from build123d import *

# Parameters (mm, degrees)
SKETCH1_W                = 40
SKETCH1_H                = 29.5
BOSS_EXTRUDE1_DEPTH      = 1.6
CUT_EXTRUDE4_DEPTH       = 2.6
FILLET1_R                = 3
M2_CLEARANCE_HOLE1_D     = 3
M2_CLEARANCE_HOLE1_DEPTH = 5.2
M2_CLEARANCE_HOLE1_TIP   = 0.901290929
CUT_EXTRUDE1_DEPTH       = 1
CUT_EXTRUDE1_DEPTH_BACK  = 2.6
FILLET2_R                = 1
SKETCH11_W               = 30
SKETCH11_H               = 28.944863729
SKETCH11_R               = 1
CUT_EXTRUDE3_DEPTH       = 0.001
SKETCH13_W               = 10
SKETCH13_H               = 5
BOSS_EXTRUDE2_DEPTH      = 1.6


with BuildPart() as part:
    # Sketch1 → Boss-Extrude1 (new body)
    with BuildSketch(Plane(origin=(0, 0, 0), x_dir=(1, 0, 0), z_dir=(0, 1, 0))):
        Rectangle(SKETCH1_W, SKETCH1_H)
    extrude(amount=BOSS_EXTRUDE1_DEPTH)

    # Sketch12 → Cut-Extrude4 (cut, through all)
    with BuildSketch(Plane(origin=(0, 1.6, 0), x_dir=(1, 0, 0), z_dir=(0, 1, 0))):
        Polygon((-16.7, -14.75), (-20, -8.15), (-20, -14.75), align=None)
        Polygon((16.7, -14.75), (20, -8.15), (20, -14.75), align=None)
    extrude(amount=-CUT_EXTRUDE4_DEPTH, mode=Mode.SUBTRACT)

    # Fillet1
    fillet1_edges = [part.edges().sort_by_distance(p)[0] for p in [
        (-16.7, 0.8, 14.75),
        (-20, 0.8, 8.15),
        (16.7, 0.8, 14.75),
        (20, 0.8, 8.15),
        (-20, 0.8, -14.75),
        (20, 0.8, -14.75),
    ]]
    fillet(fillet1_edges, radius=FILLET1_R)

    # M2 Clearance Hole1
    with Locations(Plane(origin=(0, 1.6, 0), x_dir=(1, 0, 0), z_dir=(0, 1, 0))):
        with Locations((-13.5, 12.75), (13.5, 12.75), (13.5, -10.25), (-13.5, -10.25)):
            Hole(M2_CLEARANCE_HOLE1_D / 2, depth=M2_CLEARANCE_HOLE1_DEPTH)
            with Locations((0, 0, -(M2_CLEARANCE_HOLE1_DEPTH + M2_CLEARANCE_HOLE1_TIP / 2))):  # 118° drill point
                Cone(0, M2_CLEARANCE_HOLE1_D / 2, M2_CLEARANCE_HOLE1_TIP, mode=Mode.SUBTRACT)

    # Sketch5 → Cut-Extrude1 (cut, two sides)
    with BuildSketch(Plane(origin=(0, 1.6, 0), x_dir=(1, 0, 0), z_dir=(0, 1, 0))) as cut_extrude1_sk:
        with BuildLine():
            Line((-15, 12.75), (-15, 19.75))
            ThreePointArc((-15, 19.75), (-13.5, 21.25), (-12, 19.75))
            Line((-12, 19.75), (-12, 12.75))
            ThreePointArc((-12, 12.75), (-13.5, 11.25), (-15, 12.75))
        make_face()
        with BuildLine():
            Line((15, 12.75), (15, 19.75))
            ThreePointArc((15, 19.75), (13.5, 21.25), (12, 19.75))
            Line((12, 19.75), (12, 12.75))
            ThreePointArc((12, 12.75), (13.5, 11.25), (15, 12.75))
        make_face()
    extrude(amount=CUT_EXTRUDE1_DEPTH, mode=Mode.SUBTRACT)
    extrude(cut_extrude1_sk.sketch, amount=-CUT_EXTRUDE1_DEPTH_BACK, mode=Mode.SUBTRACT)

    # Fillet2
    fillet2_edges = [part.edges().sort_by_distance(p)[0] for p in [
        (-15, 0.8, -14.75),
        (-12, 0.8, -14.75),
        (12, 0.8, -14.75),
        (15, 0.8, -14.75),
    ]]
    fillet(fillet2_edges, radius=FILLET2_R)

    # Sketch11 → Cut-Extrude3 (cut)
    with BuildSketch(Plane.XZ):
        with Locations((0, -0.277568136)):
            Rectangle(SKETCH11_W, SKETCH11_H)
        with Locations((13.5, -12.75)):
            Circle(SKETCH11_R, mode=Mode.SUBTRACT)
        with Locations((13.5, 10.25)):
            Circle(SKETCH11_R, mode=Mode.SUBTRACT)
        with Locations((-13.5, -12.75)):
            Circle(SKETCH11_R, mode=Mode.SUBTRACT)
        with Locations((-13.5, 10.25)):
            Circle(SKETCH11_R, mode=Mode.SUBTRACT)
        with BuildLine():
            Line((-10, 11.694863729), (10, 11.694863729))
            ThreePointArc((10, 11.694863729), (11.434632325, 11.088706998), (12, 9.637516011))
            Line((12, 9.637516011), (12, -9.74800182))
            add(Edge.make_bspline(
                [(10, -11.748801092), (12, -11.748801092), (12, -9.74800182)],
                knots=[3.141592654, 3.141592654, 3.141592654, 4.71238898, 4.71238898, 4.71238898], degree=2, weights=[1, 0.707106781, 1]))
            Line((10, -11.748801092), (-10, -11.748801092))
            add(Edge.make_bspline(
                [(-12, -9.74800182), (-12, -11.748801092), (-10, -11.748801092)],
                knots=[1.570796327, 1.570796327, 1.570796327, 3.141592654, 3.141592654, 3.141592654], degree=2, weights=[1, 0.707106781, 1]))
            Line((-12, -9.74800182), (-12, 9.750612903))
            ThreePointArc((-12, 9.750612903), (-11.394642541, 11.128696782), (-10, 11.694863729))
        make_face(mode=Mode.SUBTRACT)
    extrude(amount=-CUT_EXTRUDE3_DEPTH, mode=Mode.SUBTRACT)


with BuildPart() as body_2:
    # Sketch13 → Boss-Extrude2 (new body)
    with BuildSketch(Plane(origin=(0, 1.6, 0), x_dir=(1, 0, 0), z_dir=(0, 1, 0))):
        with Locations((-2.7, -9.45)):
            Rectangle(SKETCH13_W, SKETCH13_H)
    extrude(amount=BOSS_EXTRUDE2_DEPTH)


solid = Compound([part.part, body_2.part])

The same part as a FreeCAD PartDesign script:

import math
import FreeCAD as App
import Part
import Sketcher
from FreeCAD import Vector


def edges_at(feature, points):
    """Names of the edges that pass closest to the given points."""
    edges = feature.Shape.Edges
    near = lambda p: min(range(len(edges)), key=lambda i: edges[i].distToShape(Part.Vertex(*p))[0])
    return sorted({f"Edge{near(p) + 1}" for p in points})

doc = App.newDocument("Part")
body = doc.addObject("PartDesign::Body", "Body")

sketch1 = doc.addObject("Sketcher::SketchObject", "Sketch")
body.addObject(sketch1)
sketch1.AttachmentSupport = (doc.XZ_Plane, [""])
sketch1.MapMode = "FlatFace"
sketch1.addGeometry(Part.LineSegment(Vector(-20, -15, 0), Vector(-20, 15, 0)), False)
sketch1.addGeometry(Part.LineSegment(Vector(-20, 15, 0), Vector(20, 15, 0)), False)
sketch1.addGeometry(Part.LineSegment(Vector(20, 15, 0), Vector(20, -15, 0)), False)
sketch1.addGeometry(Part.LineSegment(Vector(20, -15, 0), Vector(-20, -15, 0)), False)
sketch1.addConstraint(Sketcher.Constraint("Coincident", 0, 2, 1, 1))
sketch1.addConstraint(Sketcher.Constraint("Coincident", 1, 2, 2, 1))
sketch1.addConstraint(Sketcher.Constraint("Coincident", 2, 2, 3, 1))
sketch1.addConstraint(Sketcher.Constraint("Coincident", 3, 2, 0, 1))
sketch1.addConstraint(Sketcher.Constraint("Vertical", 0))
sketch1.addConstraint(Sketcher.Constraint("Horizontal", 1))
sketch1.addConstraint(Sketcher.Constraint("Vertical", 2))
sketch1.addConstraint(Sketcher.Constraint("Horizontal", 3))
sketch1.addConstraint(Sketcher.Constraint("Symmetric", 0, 2, 2, 2, -1, 1))
sketch1.addConstraint(Sketcher.Constraint("DistanceX", 1, 1, 1, 2, 40.0))
sketch1.addConstraint(Sketcher.Constraint("DistanceY", 0, 1, 0, 2, 29.5))
pad1 = doc.addObject("PartDesign::Pad", "Pad")
body.addObject(pad1)
pad1.Profile = sketch1
pad1.Length = 1.6
pad1.Reversed = True

sketch2 = doc.addObject("Sketcher::SketchObject", "Sketch001")
body.addObject(sketch2)
sketch2.AttachmentSupport = (doc.XZ_Plane, [""])
sketch2.MapMode = "FlatFace"
sketch2.AttachmentOffset = App.Placement(Vector(0, 0, -1.6), App.Rotation())
sketch2.addGeometry(Part.LineSegment(Vector(-16.7, 14.8, 0), Vector(-20, 8.2, 0)), False)
sketch2.addGeometry(Part.LineSegment(Vector(-20, 8.2, 0), Vector(-20, 14.8, 0)), False)
sketch2.addGeometry(Part.LineSegment(Vector(-20, 14.8, 0), Vector(-16.7, 14.8, 0)), False)
sketch2.addGeometry(Part.LineSegment(Vector(20, 8.2, 0), Vector(16.7, 14.8, 0)), False)
sketch2.addGeometry(Part.LineSegment(Vector(16.7, 14.8, 0), Vector(20, 14.8, 0)), False)
sketch2.addGeometry(Part.LineSegment(Vector(20, 14.8, 0), Vector(20, 8.2, 0)), False)
sketch2.addConstraint(Sketcher.Constraint("Coincident", 0, 2, 1, 1))
sketch2.addConstraint(Sketcher.Constraint("Coincident", 1, 2, 2, 1))
sketch2.addConstraint(Sketcher.Constraint("Coincident", 2, 2, 0, 1))
sketch2.addConstraint(Sketcher.Constraint("Coincident", 3, 2, 4, 1))
sketch2.addConstraint(Sketcher.Constraint("Coincident", 4, 2, 5, 1))
sketch2.addConstraint(Sketcher.Constraint("Coincident", 5, 2, 3, 1))
sketch2.addConstraint(Sketcher.Constraint("Vertical", 1))
sketch2.addConstraint(Sketcher.Constraint("Horizontal", 2))
sketch2.addConstraint(Sketcher.Constraint("Horizontal", 4))
sketch2.addConstraint(Sketcher.Constraint("Vertical", 5))
sketch2.addConstraint(Sketcher.Constraint("Symmetric", 2, 2, 3, 2, -2))
sketch2.addConstraint(Sketcher.Constraint("Symmetric", 0, 2, 5, 2, -2))
sketch2.addConstraint(Sketcher.Constraint("DistanceX", 2, 1, 2, 2, 3.3))
sketch2.addConstraint(Sketcher.Constraint("DistanceY", 1, 1, 1, 2, 6.6))
sketch2.addConstraint(Sketcher.Constraint("DistanceX", 0, 2, -1, 1, 20.0))
sketch2.addConstraint(Sketcher.Constraint("DistanceY", -1, 1, 0, 2, 8.15))
pocket1 = doc.addObject("PartDesign::Pocket", "Pocket")
body.addObject(pocket1)
pocket1.Profile = sketch2
pocket1.Type = "ThroughAll"
pocket1.Reversed = True
doc.recompute()

fillet = doc.addObject("PartDesign::Fillet", "Fillet")
body.addObject(fillet)
fillet.Base = (pocket1, edges_at(pocket1, [
    (-16.7, 0.8, 14.75),
    (-20, 0.8, 8.15),
    (16.7, 0.8, 14.75),
    (20, 0.8, 8.15),
    (-20, 0.8, -14.75),
    (20, 0.8, -14.75),
]))
fillet.Radius = 3

sketch3 = doc.addObject("Sketcher::SketchObject", "Sketch002")
body.addObject(sketch3)
sketch3.AttachmentSupport = (doc.XZ_Plane, [""])
sketch3.MapMode = "FlatFace"
sketch3.AttachmentOffset = App.Placement(Vector(0, 0, -1.6), App.Rotation())
sketch3.addGeometry(Part.Circle(Vector(-13.5, -12.8, 0), Vector(0, 0, 1), 1.5), False)
sketch3.addGeometry(Part.Circle(Vector(13.5, -12.8, 0), Vector(0, 0, 1), 1.5), False)
sketch3.addGeometry(Part.Circle(Vector(13.5, 10.2, 0), Vector(0, 0, 1), 1.5), False)
sketch3.addGeometry(Part.Circle(Vector(-13.5, 10.2, 0), Vector(0, 0, 1), 1.5), False)
sketch3.addConstraint(Sketcher.Constraint("Equal", 0, 1))
sketch3.addConstraint(Sketcher.Constraint("Equal", 1, 2))
sketch3.addConstraint(Sketcher.Constraint("Equal", 2, 3))
sketch3.addConstraint(Sketcher.Constraint("Symmetric", 0, 3, 1, 3, -2))
sketch3.addConstraint(Sketcher.Constraint("Symmetric", 2, 3, 3, 3, -2))
sketch3.addConstraint(Sketcher.Constraint("Vertical", 1, 3, 2, 3))
sketch3.addConstraint(Sketcher.Constraint("Diameter", 0, 3.0))
sketch3.addConstraint(Sketcher.Constraint("DistanceX", 0, 3, 1, 3, 27.0))
sketch3.addConstraint(Sketcher.Constraint("DistanceY", 1, 3, 2, 3, 23.0))
sketch3.addConstraint(Sketcher.Constraint("DistanceY", 0, 3, -1, 1, 12.75))
doc.recompute()
hole = doc.addObject("PartDesign::Hole", "Hole")
body.addObject(hole)
hole.Profile = sketch3
hole.ThreadType = "None"
hole.Diameter = 3
hole.DepthType = "Dimension"
hole.Depth = 5.2
hole.DrillPoint = "Angled"
hole.DrillPointAngle = 118
hole.Reversed = True

sketch4 = doc.addObject("Sketcher::SketchObject", "Sketch003")
body.addObject(sketch4)
sketch4.AttachmentSupport = (doc.XZ_Plane, [""])
sketch4.MapMode = "FlatFace"
sketch4.AttachmentOffset = App.Placement(Vector(0, 0, -1.6), App.Rotation())
sketch4.addGeometry(Part.LineSegment(Vector(-15, -19.8, 0), Vector(-15, -12.8, 0)), False)
sketch4.addGeometry(Part.ArcOfCircle(Part.Circle(Vector(-13.5, -12.8, 0), Vector(0, 0, 1), 1.5), math.radians(0), math.radians(180)), False)
sketch4.addGeometry(Part.LineSegment(Vector(-12, -12.8, 0), Vector(-12, -19.8, 0)), False)
sketch4.addGeometry(Part.ArcOfCircle(Part.Circle(Vector(-13.5, -19.8, 0), Vector(0, 0, 1), 1.5), math.radians(180), math.radians(360)), False)
sketch4.addGeometry(Part.LineSegment(Vector(15, -12.8, 0), Vector(15, -19.8, 0)), False)
sketch4.addGeometry(Part.ArcOfCircle(Part.Circle(Vector(13.5, -19.8, 0), Vector(0, 0, 1), 1.5), math.radians(180), math.radians(360)), False)
sketch4.addGeometry(Part.LineSegment(Vector(12, -19.8, 0), Vector(12, -12.8, 0)), False)
sketch4.addGeometry(Part.ArcOfCircle(Part.Circle(Vector(13.5, -12.8, 0), Vector(0, 0, 1), 1.5), math.radians(0), math.radians(180)), False)
sketch4.addConstraint(Sketcher.Constraint("Tangent", 0, 2, 1, 2))
sketch4.addConstraint(Sketcher.Constraint("Tangent", 1, 1, 2, 1))
sketch4.addConstraint(Sketcher.Constraint("Tangent", 2, 2, 3, 2))
sketch4.addConstraint(Sketcher.Constraint("Tangent", 3, 1, 0, 1))
sketch4.addConstraint(Sketcher.Constraint("Tangent", 4, 2, 5, 2))
sketch4.addConstraint(Sketcher.Constraint("Tangent", 5, 1, 6, 1))
sketch4.addConstraint(Sketcher.Constraint("Tangent", 6, 2, 7, 2))
sketch4.addConstraint(Sketcher.Constraint("Tangent", 7, 1, 4, 1))
sketch4.addConstraint(Sketcher.Constraint("Vertical", 0))
sketch4.addConstraint(Sketcher.Constraint("Vertical", 2))
sketch4.addConstraint(Sketcher.Constraint("Vertical", 4))
sketch4.addConstraint(Sketcher.Constraint("Vertical", 6))
sketch4.addConstraint(Sketcher.Constraint("Equal", 3, 5))
sketch4.addConstraint(Sketcher.Constraint("Symmetric", 3, 3, 5, 3, -2))
sketch4.addConstraint(Sketcher.Constraint("Horizontal", 1, 3, 7, 3))
sketch4.addConstraint(Sketcher.Constraint("Radius", 1, 1.5))
sketch4.addConstraint(Sketcher.Constraint("DistanceY", 0, 1, 0, 2, 7.0))
sketch4.addConstraint(Sketcher.Constraint("DistanceX", 0, 2, -1, 1, 15.0))
sketch4.addConstraint(Sketcher.Constraint("DistanceY", 1, 3, -1, 1, 12.75))
pocket2 = doc.addObject("PartDesign::Pocket", "Pocket001")
body.addObject(pocket2)
pocket2.Profile = sketch4
pocket2.Type = "ThroughAll"
pocket2.Midplane = True
doc.recompute()

fillet2 = doc.addObject("PartDesign::Fillet", "Fillet001")
body.addObject(fillet2)
fillet2.Base = (pocket2, edges_at(pocket2, [
    (-15, 0.8, -14.75),
    (-12, 0.8, -14.75),
    (12, 0.8, -14.75),
    (15, 0.8, -14.75),
]))
fillet2.Radius = 1

sketch5 = doc.addObject("Sketcher::SketchObject", "Sketch004")
body.addObject(sketch5)
sketch5.AttachmentSupport = (doc.XZ_Plane, [""])
sketch5.MapMode = "FlatFace"
sketch5.addGeometry(Part.LineSegment(Vector(-15, 14.194864, 0), Vector(-15, -14.75, 0)), False)
sketch5.addGeometry(Part.LineSegment(Vector(-15, -14.75, 0), Vector(15, -14.75, 0)), False)
sketch5.addGeometry(Part.LineSegment(Vector(15, -14.75, 0), Vector(15, 14.194864, 0)), False)
sketch5.addGeometry(Part.LineSegment(Vector(15, 14.194864, 0), Vector(-15, 14.194864, 0)), False)
sketch5.addGeometry(Part.Circle(Vector(-13.5, -12.75, 0), Vector(0, 0, 1), 1), False)
sketch5.addGeometry(Part.Circle(Vector(13.5, -12.75, 0), Vector(0, 0, 1), 1), False)
sketch5.addGeometry(Part.Circle(Vector(-13.5, 10.25, 0), Vector(0, 0, 1), 1), False)
sketch5.addGeometry(Part.ArcOfCircle(Part.Circle(Vector(-10, 9.694064, 0), Vector(0, 0, 1), 2.000799), math.radians(90), math.radians(178.380438)), False)
sketch5.addGeometry(Part.LineSegment(Vector(-10, 11.694864, 0), Vector(10, 11.694864, 0)), False)
sketch5.addGeometry(Part.ArcOfCircle(Part.Circle(Vector(10, 9.694064, 0), Vector(0, 0, 1), 2.000799), math.radians(-1.619562), math.radians(90)), False)
sketch5.addGeometry(Part.LineSegment(Vector(12, 9.637516, 0), Vector(12, -9.748002, 0)), False)
sketch5.addGeometry(Part.BSplineCurve([Vector(10, -11.748801, 0), Vector(12, -11.748801, 0), Vector(12, -9.748002, 0)], [3, 3], [3.141592654, 4.71238898], False, 2, [1, 0.707106781, 1], False), False)
sketch5.addGeometry(Part.LineSegment(Vector(10, -11.748801, 0), Vector(-10, -11.748801, 0)), False)
sketch5.addGeometry(Part.BSplineCurve([Vector(-12, -9.748002, 0), Vector(-12, -11.748801, 0), Vector(-10, -11.748801, 0)], [3, 3], [1.570796327, 3.141592654], False, 2, [1, 0.707106781, 1], False), False)
sketch5.addGeometry(Part.LineSegment(Vector(-12, -9.748002, 0), Vector(-12, 9.750613, 0)), False)
sketch5.addGeometry(Part.Circle(Vector(13.5, 10.25, 0), Vector(0, 0, 1), 1), False)
sketch5.addConstraint(Sketcher.Constraint("Block", 11))
sketch5.addConstraint(Sketcher.Constraint("Block", 13))
sketch5.addConstraint(Sketcher.Constraint("Coincident", 0, 2, 1, 1))
sketch5.addConstraint(Sketcher.Constraint("Coincident", 1, 2, 2, 1))
sketch5.addConstraint(Sketcher.Constraint("Coincident", 2, 2, 3, 1))
sketch5.addConstraint(Sketcher.Constraint("Coincident", 3, 2, 0, 1))
sketch5.addConstraint(Sketcher.Constraint("Coincident", 7, 1, 8, 1))
sketch5.addConstraint(Sketcher.Constraint("Coincident", 8, 2, 9, 2))
sketch5.addConstraint(Sketcher.Constraint("Coincident", 9, 1, 10, 1))
sketch5.addConstraint(Sketcher.Constraint("Coincident", 10, 2, 11, 2))
sketch5.addConstraint(Sketcher.Constraint("Coincident", 11, 1, 12, 1))
sketch5.addConstraint(Sketcher.Constraint("Coincident", 12, 2, 13, 2))
sketch5.addConstraint(Sketcher.Constraint("Coincident", 13, 1, 14, 1))
sketch5.addConstraint(Sketcher.Constraint("Coincident", 14, 2, 7, 2))
sketch5.addConstraint(Sketcher.Constraint("Vertical", 0))
sketch5.addConstraint(Sketcher.Constraint("Horizontal", 1))
sketch5.addConstraint(Sketcher.Constraint("Vertical", 2))
sketch5.addConstraint(Sketcher.Constraint("Horizontal", 3))
sketch5.addConstraint(Sketcher.Constraint("Horizontal", 8))
sketch5.addConstraint(Sketcher.Constraint("Vertical", 10))
sketch5.addConstraint(Sketcher.Constraint("Vertical", 14))
sketch5.addConstraint(Sketcher.Constraint("Diameter", 4, 2.0))
sketch5.addConstraint(Sketcher.Constraint("Diameter", 5, 2.0))
sketch5.addConstraint(Sketcher.Constraint("Diameter", 6, 2.0))
sketch5.addConstraint(Sketcher.Constraint("Diameter", 15, 2.0))
sketch5.addConstraint(Sketcher.Constraint("DistanceX", 1, 1, 1, 2, 30.0))
sketch5.addConstraint(Sketcher.Constraint("DistanceX", 8, 1, 8, 2, 20.0))
sketch5.addConstraint(Sketcher.Constraint("DistanceX", 7, 3, -1, 1, 10.0))
sketch5.addConstraint(Sketcher.Constraint("DistanceX", -1, 1, 9, 3, 10.0))
sketch5.addConstraint(Sketcher.Constraint("DistanceX", 0, 2, -1, 1, 15.0))
sketch5.addConstraint(Sketcher.Constraint("DistanceX", 7, 1, -1, 1, 10.0))
sketch5.addConstraint(Sketcher.Constraint("DistanceX", 4, 3, 5, 3, 27.0))
sketch5.addConstraint(Sketcher.Constraint("DistanceY", 4, 3, 6, 3, 23.0))
sketch5.addConstraint(Sketcher.Constraint("DistanceX", 6, 3, 5, 3, 27.0))
sketch5.addConstraint(Sketcher.Constraint("DistanceY", 5, 3, 6, 3, 23.0))
sketch5.addConstraint(Sketcher.Constraint("DistanceY", 5, 3, 15, 3, 23.0))
sketch5.addConstraint(Sketcher.Constraint("DistanceX", 6, 3, 15, 3, 27.0))
sketch5.addConstraint(Sketcher.Constraint("DistanceY", 0, 2, 4, 3, 2.0))
sketch5.addConstraint(Sketcher.Constraint("DistanceX", 4, 3, -1, 1, 13.5))
sketch5.addConstraint(Sketcher.Constraint("Radius", 7, 2.000799))
sketch5.addConstraint(Sketcher.Constraint("Radius", 9, 2.000799))
sketch5.addConstraint(Sketcher.Constraint("DistanceY", 7, 1, 3, 2, 2.5))
sketch5.addConstraint(Sketcher.Constraint("DistanceY", 4, 3, -1, 1, 12.75))
sketch5.addConstraint(Sketcher.Constraint("DistanceY", 0, 2, 0, 1, 28.944864))
pocket3 = doc.addObject("PartDesign::Pocket", "Pocket002")
body.addObject(pocket3)
pocket3.Profile = sketch5
pocket3.Length = 0.001
body2 = doc.addObject("PartDesign::Body", "Body001")

sketch6 = doc.addObject("Sketcher::SketchObject", "Sketch005")
body2.addObject(sketch6)
sketch6.AttachmentSupport = (doc.getObject("XZ_Plane001"), [""])
sketch6.MapMode = "FlatFace"
sketch6.AttachmentOffset = App.Placement(Vector(0, 0, -1.6), App.Rotation())
sketch6.addGeometry(Part.LineSegment(Vector(-7.7, 7, 0), Vector(-7.7, 11.9, 0)), False)
sketch6.addGeometry(Part.LineSegment(Vector(-7.7, 11.9, 0), Vector(2.3, 11.9, 0)), False)
sketch6.addGeometry(Part.LineSegment(Vector(2.3, 11.9, 0), Vector(2.3, 7, 0)), False)
sketch6.addGeometry(Part.LineSegment(Vector(2.3, 7, 0), Vector(-7.7, 7, 0)), False)
sketch6.addConstraint(Sketcher.Constraint("Coincident", 0, 2, 1, 1))
sketch6.addConstraint(Sketcher.Constraint("Coincident", 1, 2, 2, 1))
sketch6.addConstraint(Sketcher.Constraint("Coincident", 2, 2, 3, 1))
sketch6.addConstraint(Sketcher.Constraint("Coincident", 3, 2, 0, 1))
sketch6.addConstraint(Sketcher.Constraint("Vertical", 0))
sketch6.addConstraint(Sketcher.Constraint("Horizontal", 1))
sketch6.addConstraint(Sketcher.Constraint("Vertical", 2))
sketch6.addConstraint(Sketcher.Constraint("Horizontal", 3))
sketch6.addConstraint(Sketcher.Constraint("DistanceX", 1, 1, 1, 2, 10.0))
sketch6.addConstraint(Sketcher.Constraint("DistanceY", 0, 1, 0, 2, 5.0))
sketch6.addConstraint(Sketcher.Constraint("DistanceX", 0, 2, -1, 1, 7.7))
sketch6.addConstraint(Sketcher.Constraint("DistanceY", -1, 1, 0, 2, 11.95))
pad2 = doc.addObject("PartDesign::Pad", "Pad001")
body2.addObject(pad2)
pad2.Profile = sketch6
pad2.Length = 1.6
pad2.Reversed = True

doc.recompute()
